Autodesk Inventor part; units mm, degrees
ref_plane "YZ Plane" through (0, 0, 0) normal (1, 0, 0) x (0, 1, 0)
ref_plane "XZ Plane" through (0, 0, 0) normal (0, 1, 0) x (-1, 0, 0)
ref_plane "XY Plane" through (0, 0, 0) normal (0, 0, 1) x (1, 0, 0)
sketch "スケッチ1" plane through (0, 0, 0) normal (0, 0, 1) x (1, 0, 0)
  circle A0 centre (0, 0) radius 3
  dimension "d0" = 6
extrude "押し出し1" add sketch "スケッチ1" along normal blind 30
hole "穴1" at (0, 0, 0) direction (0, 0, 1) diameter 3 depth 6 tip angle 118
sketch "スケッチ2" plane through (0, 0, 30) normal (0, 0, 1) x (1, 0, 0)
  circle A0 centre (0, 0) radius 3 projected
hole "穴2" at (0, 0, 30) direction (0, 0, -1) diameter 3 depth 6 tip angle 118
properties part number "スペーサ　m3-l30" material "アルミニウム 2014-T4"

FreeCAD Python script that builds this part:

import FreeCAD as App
import Part
import Sketcher

doc = App.newDocument("Part")
body = doc.addObject("PartDesign::Body", "Body")

# Sketch on XY plane
sketch1 = body.newObject("Sketcher::SketchObject", "Sketch")
sketch1.AttachmentSupport = (doc.getObject("XY_Plane"), [""])
sketch1.MapMode = "FlatFace"
sketch1.addGeometry(Part.Circle(App.Vector(0, 0, 0), App.Vector(0, 0, 1), 3), False)
sketch1.addConstraint([
    Sketcher.Constraint("Coincident", 0, 3, -1, 1),
    Sketcher.Constraint("Diameter", 0, 6.0),
])
pad1 = body.newObject("PartDesign::Pad", "Pad")
pad1.Profile = sketch1
pad1.Length = 30

# Sketch on XY plane
sketch2 = body.newObject("Sketcher::SketchObject", "Sketch001")
sketch2.AttachmentSupport = (doc.getObject("XY_Plane"), [""])
sketch2.MapMode = "FlatFace"
sketch2.addGeometry(Part.Circle(App.Vector(0, 0, 0), App.Vector(0, 0, 1), 1.5), False)
sketch2.addConstraint([
    Sketcher.Constraint("Coincident", 0, 3, -1, 1),
    Sketcher.Constraint("Diameter", 0, 3.0),
])
doc.recompute()
hole = body.newObject("PartDesign::Hole", "Hole")
hole.Profile = sketch2
hole.ThreadType = "None"
hole.Diameter = 3
hole.DepthType = "Dimension"
hole.Depth = 6
hole.DrillPoint = "Angled"
hole.DrillPointAngle = 118
hole.Reversed = True

# Sketch on XY plane
sketch3 = body.newObject("Sketcher::SketchObject", "Sketch002")
sketch3.AttachmentSupport = (doc.getObject("XY_Plane"), [""])
sketch3.MapMode = "FlatFace"
sketch3.AttachmentOffset = App.Placement(App.Vector(0, 0, 30), App.Rotation())
sketch3.addGeometry(Part.Circle(App.Vector(0, 0, 0), App.Vector(0, 0, 1), 1.5), False)
sketch3.addConstraint([
    Sketcher.Constraint("Coincident", 0, 3, -1, 1),
    Sketcher.Constraint("Diameter", 0, 3.0),
])
doc.recompute()
hole2 = body.newObject("PartDesign::Hole", "Hole001")
hole2.Profile = sketch3
hole2.ThreadType = "None"
hole2.Diameter = 3
hole2.DepthType = "Dimension"
hole2.Depth = 6
hole2.DrillPoint = "Angled"
hole2.DrillPointAngle = 118

doc.recompute()
